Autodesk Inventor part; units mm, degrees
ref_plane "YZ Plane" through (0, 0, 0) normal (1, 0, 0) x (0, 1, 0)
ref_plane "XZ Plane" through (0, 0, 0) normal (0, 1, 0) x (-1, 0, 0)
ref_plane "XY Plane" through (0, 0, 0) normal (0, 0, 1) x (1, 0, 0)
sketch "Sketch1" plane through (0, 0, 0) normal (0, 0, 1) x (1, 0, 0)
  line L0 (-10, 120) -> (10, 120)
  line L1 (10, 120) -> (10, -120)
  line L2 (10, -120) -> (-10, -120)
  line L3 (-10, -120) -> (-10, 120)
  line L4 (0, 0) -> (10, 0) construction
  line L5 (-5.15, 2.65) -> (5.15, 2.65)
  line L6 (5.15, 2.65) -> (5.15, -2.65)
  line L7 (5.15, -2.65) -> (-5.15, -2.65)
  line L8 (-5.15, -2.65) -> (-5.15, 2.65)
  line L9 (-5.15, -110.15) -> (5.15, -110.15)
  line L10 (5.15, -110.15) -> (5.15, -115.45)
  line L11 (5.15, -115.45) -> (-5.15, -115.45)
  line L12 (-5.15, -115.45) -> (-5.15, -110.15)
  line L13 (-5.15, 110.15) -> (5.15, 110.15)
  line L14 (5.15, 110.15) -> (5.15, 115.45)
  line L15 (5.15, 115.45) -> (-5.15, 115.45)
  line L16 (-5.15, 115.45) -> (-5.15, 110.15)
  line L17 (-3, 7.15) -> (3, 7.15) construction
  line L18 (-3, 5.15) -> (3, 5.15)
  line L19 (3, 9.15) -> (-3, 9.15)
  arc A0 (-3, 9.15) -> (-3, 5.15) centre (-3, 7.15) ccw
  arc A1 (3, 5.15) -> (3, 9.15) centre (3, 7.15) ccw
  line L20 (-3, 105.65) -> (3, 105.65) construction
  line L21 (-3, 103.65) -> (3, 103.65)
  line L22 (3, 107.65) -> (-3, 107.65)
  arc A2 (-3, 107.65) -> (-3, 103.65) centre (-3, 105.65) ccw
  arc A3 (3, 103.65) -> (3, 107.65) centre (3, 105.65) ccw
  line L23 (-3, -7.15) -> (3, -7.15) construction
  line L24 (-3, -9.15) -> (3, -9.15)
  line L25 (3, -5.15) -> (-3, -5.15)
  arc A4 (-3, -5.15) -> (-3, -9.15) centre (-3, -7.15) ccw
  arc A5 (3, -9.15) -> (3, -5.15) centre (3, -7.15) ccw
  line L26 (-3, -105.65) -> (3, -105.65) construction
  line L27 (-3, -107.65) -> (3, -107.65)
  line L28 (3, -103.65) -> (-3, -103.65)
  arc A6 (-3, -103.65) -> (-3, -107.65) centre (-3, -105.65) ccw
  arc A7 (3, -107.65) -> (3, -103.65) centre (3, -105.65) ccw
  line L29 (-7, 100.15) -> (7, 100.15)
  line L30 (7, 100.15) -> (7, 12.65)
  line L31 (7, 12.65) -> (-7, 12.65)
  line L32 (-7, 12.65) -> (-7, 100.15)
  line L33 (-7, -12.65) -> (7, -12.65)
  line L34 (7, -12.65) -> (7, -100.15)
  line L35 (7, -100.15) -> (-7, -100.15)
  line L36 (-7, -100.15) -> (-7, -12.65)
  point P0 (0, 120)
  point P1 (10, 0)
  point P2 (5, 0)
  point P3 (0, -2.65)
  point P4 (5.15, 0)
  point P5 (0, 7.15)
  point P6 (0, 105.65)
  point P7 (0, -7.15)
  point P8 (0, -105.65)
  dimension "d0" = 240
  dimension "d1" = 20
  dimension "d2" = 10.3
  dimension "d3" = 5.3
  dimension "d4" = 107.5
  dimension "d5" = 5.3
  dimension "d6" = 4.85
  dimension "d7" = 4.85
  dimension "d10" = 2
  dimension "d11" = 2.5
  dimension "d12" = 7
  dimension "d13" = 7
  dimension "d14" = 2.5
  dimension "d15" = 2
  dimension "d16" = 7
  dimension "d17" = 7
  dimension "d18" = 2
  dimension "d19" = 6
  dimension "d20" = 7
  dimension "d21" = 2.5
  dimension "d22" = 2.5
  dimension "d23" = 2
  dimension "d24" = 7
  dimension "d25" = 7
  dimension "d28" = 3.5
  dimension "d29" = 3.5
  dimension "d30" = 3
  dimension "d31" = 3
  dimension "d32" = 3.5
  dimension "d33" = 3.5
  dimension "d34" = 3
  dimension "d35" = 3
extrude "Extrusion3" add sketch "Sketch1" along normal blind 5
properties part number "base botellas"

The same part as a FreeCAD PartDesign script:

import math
import FreeCAD as App
import Part
import Sketcher

V = App.Vector
Q = App.Units.Quantity


def add_polygon(sketch, points):
    """Adds a closed chain of lines whose ends are joined by coincident constraints."""
    first, n = sketch.GeometryCount, len(points)
    for a, b in zip(points, points[1:] + points[:1]):
        sketch.addGeometry(Part.LineSegment(App.Vector(*a, 0), App.Vector(*b, 0)), False)
    for i in range(n):
        sketch.addConstraint(Sketcher.Constraint("Coincident", first + i, 2, first + (i + 1) % n, 1))

doc = App.newDocument("Part")
body = doc.addObject("PartDesign::Body", "Body")

# Sketch on XY plane
sketch1 = doc.addObject("Sketcher::SketchObject", "Sketch")
body.addObject(sketch1)
sketch1.AttachmentSupport = (doc.XY_Plane, [""])
sketch1.MapMode = "FlatFace"
add_polygon(sketch1, [(10, 120), (-10, 120), (-10, -120), (10, -120)])  # lines 0-3
add_polygon(sketch1, [(-5.2, -115.5), (-5.2, -110.2), (5.2, -110.2), (5.2, -115.5)])  # lines 4-7
sketch1.addGeometry(Part.LineSegment(V(3, -107.7, 0), V(-3, -107.7, 0)), False)  # 8
sketch1.addGeometry(Part.ArcOfCircle(Part.Circle(V(-3, -105.7, 0), V(0, 0, 1), 2), math.radians(90), math.radians(270)), False)  # 9
sketch1.addGeometry(Part.LineSegment(V(-3, -103.7, 0), V(3, -103.7, 0)), False)  # 10
sketch1.addGeometry(Part.ArcOfCircle(Part.Circle(V(3, -105.7, 0), V(0, 0, 1), 2), math.radians(-90), math.radians(90)), False)  # 11
add_polygon(sketch1, [(-7, -100.2), (-7, -12.7), (7, -12.7), (7, -100.2)])  # lines 12-15
sketch1.addGeometry(Part.LineSegment(V(3, -9.2, 0), V(-3, -9.2, 0)), False)  # 16
sketch1.addGeometry(Part.ArcOfCircle(Part.Circle(V(-3, -7.2, 0), V(0, 0, 1), 2), math.radians(90), math.radians(270)), False)  # 17
sketch1.addGeometry(Part.LineSegment(V(-3, -5.2, 0), V(3, -5.2, 0)), False)  # 18
sketch1.addGeometry(Part.ArcOfCircle(Part.Circle(V(3, -7.2, 0), V(0, 0, 1), 2), math.radians(-90), math.radians(90)), False)  # 19
add_polygon(sketch1, [(-5.2, -2.6), (-5.2, 2.6), (5.2, 2.6), (5.2, -2.6)])  # lines 20-23
sketch1.addGeometry(Part.LineSegment(V(3, 5.2, 0), V(-3, 5.2, 0)), False)  # 24
sketch1.addGeometry(Part.ArcOfCircle(Part.Circle(V(-3, 7.2, 0), V(0, 0, 1), 2), math.radians(90), math.radians(270)), False)  # 25
sketch1.addGeometry(Part.LineSegment(V(-3, 9.2, 0), V(3, 9.2, 0)), False)  # 26
sketch1.addGeometry(Part.ArcOfCircle(Part.Circle(V(3, 7.2, 0), V(0, 0, 1), 2), math.radians(-90), math.radians(90)), False)  # 27
add_polygon(sketch1, [(-7, 12.7), (-7, 100.2), (7, 100.2), (7, 12.7)])  # lines 28-31
sketch1.addGeometry(Part.LineSegment(V(3, 103.7, 0), V(-3, 103.7, 0)), False)  # 32
sketch1.addGeometry(Part.ArcOfCircle(Part.Circle(V(-3, 105.7, 0), V(0, 0, 1), 2), math.radians(90), math.radians(270)), False)  # 33
sketch1.addGeometry(Part.LineSegment(V(-3, 107.7, 0), V(3, 107.7, 0)), False)  # 34
sketch1.addGeometry(Part.ArcOfCircle(Part.Circle(V(3, 105.7, 0), V(0, 0, 1), 2), math.radians(-90), math.radians(90)), False)  # 35
add_polygon(sketch1, [(5.2, 110.2), (-5.2, 110.2), (-5.2, 115.5), (5.2, 115.5)])  # lines 36-39
sketch1.addConstraint(Sketcher.Constraint("Tangent", 8, 2, 9, 2))
sketch1.addConstraint(Sketcher.Constraint("Tangent", 9, 1, 10, 1))
sketch1.addConstraint(Sketcher.Constraint("Tangent", 10, 2, 11, 2))
sketch1.addConstraint(Sketcher.Constraint("Tangent", 11, 1, 8, 1))
sketch1.addConstraint(Sketcher.Constraint("Tangent", 16, 2, 17, 2))
sketch1.addConstraint(Sketcher.Constraint("Tangent", 17, 1, 18, 1))
sketch1.addConstraint(Sketcher.Constraint("Tangent", 18, 2, 19, 2))
sketch1.addConstraint(Sketcher.Constraint("Tangent", 19, 1, 16, 1))
sketch1.addConstraint(Sketcher.Constraint("Tangent", 24, 2, 25, 2))
sketch1.addConstraint(Sketcher.Constraint("Tangent", 25, 1, 26, 1))
sketch1.addConstraint(Sketcher.Constraint("Tangent", 26, 2, 27, 2))
sketch1.addConstraint(Sketcher.Constraint("Tangent", 27, 1, 24, 1))
sketch1.addConstraint(Sketcher.Constraint("Tangent", 32, 2, 33, 2))
sketch1.addConstraint(Sketcher.Constraint("Tangent", 33, 1, 34, 1))
sketch1.addConstraint(Sketcher.Constraint("Tangent", 34, 2, 35, 2))
sketch1.addConstraint(Sketcher.Constraint("Tangent", 35, 1, 32, 1))
sketch1.addConstraint(Sketcher.Constraint("Horizontal", 0))
sketch1.addConstraint(Sketcher.Constraint("Vertical", 1))
sketch1.addConstraint(Sketcher.Constraint("Horizontal", 2))
sketch1.addConstraint(Sketcher.Constraint("Vertical", 3))
sketch1.addConstraint(Sketcher.Constraint("Vertical", 4))
sketch1.addConstraint(Sketcher.Constraint("Horizontal", 5))
sketch1.addConstraint(Sketcher.Constraint("Vertical", 6))
sketch1.addConstraint(Sketcher.Constraint("Horizontal", 7))
sketch1.addConstraint(Sketcher.Constraint("Horizontal", 8))
sketch1.addConstraint(Sketcher.Constraint("Horizontal", 10))
sketch1.addConstraint(Sketcher.Constraint("Vertical", 12))
sketch1.addConstraint(Sketcher.Constraint("Horizontal", 13))
sketch1.addConstraint(Sketcher.Constraint("Vertical", 14))
sketch1.addConstraint(Sketcher.Constraint("Horizontal", 15))
sketch1.addConstraint(Sketcher.Constraint("Horizontal", 16))
sketch1.addConstraint(Sketcher.Constraint("Horizontal", 18))
sketch1.addConstraint(Sketcher.Constraint("Vertical", 20))
sketch1.addConstraint(Sketcher.Constraint("Horizontal", 21))
sketch1.addConstraint(Sketcher.Constraint("Vertical", 22))
sketch1.addConstraint(Sketcher.Constraint("Horizontal", 23))
sketch1.addConstraint(Sketcher.Constraint("Horizontal", 24))
sketch1.addConstraint(Sketcher.Constraint("Horizontal", 26))
sketch1.addConstraint(Sketcher.Constraint("Vertical", 28))
sketch1.addConstraint(Sketcher.Constraint("Horizontal", 29))
sketch1.addConstraint(Sketcher.Constraint("Vertical", 30))
sketch1.addConstraint(Sketcher.Constraint("Horizontal", 31))
sketch1.addConstraint(Sketcher.Constraint("Horizontal", 32))
sketch1.addConstraint(Sketcher.Constraint("Horizontal", 34))
sketch1.addConstraint(Sketcher.Constraint("Horizontal", 36))
sketch1.addConstraint(Sketcher.Constraint("Vertical", 37))
sketch1.addConstraint(Sketcher.Constraint("Horizontal", 38))
sketch1.addConstraint(Sketcher.Constraint("Vertical", 39))
sketch1.addConstraint(Sketcher.Constraint("Equal", 11, 17))
sketch1.addConstraint(Sketcher.Constraint("Equal", 19, 25))
sketch1.addConstraint(Sketcher.Constraint("Equal", 27, 33))
sketch1.addConstraint(Sketcher.Constraint("Symmetric", 19, 3, 25, 3, -1, 1))
sketch1.addConstraint(Sketcher.Constraint("Symmetric", 11, 3, 33, 3, -1, 1))
sketch1.addConstraint(Sketcher.Constraint("Symmetric", 0, 2, 2, 2, -1, 1))
sketch1.addConstraint(Sketcher.Constraint("Symmetric", 20, 2, 22, 2, -1, 1))
sketch1.addConstraint(Sketcher.Constraint("Symmetric", 14, 2, 28, 2, -1, 1))
sketch1.addConstraint(Sketcher.Constraint("Symmetric", 12, 2, 30, 2, -1, 1))
sketch1.addConstraint(Sketcher.Constraint("Symmetric", 5, 2, 36, 2, -1, 1))
sketch1.addConstraint(Sketcher.Constraint("Symmetric", 7, 2, 38, 2, -1, 1))
sketch1.addConstraint(Sketcher.Constraint("Vertical", 9, 3, 17, 3))
sketch1.addConstraint(Sketcher.Constraint("Vertical", 11, 3, 19, 3))
sketch1.addConstraint(Sketcher.Constraint("Vertical", 17, 3, 25, 3))
sketch1.addConstraint(Sketcher.Constraint("Vertical", 19, 3, 27, 3))
sketch1.addConstraint(Sketcher.Constraint("Vertical", 27, 3, 35, 3))
sketch1.addConstraint(Sketcher.Constraint("Vertical", 7, 2, 20, 2))
sketch1.addConstraint(Sketcher.Constraint("Vertical", 6, 2, 21, 2))
sketch1.addConstraint(Sketcher.Constraint("Vertical", 15, 2, 28, 2))
sketch1.addConstraint(Sketcher.Constraint("Equal", 6, 20))
sketch1.addConstraint(Sketcher.Constraint("Radius", 9, Q("2 mm")))
sketch1.addConstraint(Sketcher.Constraint("DistanceX", 0, 2, 0, 1, Q("20 mm")))
sketch1.addConstraint(Sketcher.Constraint("DistanceX", 8, 2, 8, 1, Q("6 mm")))
sketch1.addConstraint(Sketcher.Constraint("DistanceY", 1, 2, 1, 1, Q("240 mm")))
sketch1.addConstraint(Sketcher.Constraint("DistanceX", 5, 1, 5, 2, Q("10.3 mm")))
sketch1.addConstraint(Sketcher.Constraint("DistanceY", 4, 1, 4, 2, Q("5.3 mm")))
sketch1.addConstraint(Sketcher.Constraint("DistanceX", 12, 2, -1, 1, Q("7 mm")))
sketch1.addConstraint(Sketcher.Constraint("DistanceY", 4, 2, 8, 2, Q("2.5 mm")))
sketch1.addConstraint(Sketcher.Constraint("DistanceY", 10, 2, 14, 2, Q("3.5 mm")))
sketch1.addConstraint(Sketcher.Constraint("DistanceY", 12, 2, 16, 2, Q("3.5 mm")))
sketch1.addConstraint(Sketcher.Constraint("DistanceY", 18, 2, 22, 2, Q("2.5 mm")))
sketch1.addConstraint(Sketcher.Constraint("DistanceY", 12, 1, 12, 2, Q("87.5 mm")))
pad1 = doc.addObject("PartDesign::Pad", "Pad")
body.addObject(pad1)
pad1.Profile = sketch1
pad1.Length = 5

doc.recompute()
